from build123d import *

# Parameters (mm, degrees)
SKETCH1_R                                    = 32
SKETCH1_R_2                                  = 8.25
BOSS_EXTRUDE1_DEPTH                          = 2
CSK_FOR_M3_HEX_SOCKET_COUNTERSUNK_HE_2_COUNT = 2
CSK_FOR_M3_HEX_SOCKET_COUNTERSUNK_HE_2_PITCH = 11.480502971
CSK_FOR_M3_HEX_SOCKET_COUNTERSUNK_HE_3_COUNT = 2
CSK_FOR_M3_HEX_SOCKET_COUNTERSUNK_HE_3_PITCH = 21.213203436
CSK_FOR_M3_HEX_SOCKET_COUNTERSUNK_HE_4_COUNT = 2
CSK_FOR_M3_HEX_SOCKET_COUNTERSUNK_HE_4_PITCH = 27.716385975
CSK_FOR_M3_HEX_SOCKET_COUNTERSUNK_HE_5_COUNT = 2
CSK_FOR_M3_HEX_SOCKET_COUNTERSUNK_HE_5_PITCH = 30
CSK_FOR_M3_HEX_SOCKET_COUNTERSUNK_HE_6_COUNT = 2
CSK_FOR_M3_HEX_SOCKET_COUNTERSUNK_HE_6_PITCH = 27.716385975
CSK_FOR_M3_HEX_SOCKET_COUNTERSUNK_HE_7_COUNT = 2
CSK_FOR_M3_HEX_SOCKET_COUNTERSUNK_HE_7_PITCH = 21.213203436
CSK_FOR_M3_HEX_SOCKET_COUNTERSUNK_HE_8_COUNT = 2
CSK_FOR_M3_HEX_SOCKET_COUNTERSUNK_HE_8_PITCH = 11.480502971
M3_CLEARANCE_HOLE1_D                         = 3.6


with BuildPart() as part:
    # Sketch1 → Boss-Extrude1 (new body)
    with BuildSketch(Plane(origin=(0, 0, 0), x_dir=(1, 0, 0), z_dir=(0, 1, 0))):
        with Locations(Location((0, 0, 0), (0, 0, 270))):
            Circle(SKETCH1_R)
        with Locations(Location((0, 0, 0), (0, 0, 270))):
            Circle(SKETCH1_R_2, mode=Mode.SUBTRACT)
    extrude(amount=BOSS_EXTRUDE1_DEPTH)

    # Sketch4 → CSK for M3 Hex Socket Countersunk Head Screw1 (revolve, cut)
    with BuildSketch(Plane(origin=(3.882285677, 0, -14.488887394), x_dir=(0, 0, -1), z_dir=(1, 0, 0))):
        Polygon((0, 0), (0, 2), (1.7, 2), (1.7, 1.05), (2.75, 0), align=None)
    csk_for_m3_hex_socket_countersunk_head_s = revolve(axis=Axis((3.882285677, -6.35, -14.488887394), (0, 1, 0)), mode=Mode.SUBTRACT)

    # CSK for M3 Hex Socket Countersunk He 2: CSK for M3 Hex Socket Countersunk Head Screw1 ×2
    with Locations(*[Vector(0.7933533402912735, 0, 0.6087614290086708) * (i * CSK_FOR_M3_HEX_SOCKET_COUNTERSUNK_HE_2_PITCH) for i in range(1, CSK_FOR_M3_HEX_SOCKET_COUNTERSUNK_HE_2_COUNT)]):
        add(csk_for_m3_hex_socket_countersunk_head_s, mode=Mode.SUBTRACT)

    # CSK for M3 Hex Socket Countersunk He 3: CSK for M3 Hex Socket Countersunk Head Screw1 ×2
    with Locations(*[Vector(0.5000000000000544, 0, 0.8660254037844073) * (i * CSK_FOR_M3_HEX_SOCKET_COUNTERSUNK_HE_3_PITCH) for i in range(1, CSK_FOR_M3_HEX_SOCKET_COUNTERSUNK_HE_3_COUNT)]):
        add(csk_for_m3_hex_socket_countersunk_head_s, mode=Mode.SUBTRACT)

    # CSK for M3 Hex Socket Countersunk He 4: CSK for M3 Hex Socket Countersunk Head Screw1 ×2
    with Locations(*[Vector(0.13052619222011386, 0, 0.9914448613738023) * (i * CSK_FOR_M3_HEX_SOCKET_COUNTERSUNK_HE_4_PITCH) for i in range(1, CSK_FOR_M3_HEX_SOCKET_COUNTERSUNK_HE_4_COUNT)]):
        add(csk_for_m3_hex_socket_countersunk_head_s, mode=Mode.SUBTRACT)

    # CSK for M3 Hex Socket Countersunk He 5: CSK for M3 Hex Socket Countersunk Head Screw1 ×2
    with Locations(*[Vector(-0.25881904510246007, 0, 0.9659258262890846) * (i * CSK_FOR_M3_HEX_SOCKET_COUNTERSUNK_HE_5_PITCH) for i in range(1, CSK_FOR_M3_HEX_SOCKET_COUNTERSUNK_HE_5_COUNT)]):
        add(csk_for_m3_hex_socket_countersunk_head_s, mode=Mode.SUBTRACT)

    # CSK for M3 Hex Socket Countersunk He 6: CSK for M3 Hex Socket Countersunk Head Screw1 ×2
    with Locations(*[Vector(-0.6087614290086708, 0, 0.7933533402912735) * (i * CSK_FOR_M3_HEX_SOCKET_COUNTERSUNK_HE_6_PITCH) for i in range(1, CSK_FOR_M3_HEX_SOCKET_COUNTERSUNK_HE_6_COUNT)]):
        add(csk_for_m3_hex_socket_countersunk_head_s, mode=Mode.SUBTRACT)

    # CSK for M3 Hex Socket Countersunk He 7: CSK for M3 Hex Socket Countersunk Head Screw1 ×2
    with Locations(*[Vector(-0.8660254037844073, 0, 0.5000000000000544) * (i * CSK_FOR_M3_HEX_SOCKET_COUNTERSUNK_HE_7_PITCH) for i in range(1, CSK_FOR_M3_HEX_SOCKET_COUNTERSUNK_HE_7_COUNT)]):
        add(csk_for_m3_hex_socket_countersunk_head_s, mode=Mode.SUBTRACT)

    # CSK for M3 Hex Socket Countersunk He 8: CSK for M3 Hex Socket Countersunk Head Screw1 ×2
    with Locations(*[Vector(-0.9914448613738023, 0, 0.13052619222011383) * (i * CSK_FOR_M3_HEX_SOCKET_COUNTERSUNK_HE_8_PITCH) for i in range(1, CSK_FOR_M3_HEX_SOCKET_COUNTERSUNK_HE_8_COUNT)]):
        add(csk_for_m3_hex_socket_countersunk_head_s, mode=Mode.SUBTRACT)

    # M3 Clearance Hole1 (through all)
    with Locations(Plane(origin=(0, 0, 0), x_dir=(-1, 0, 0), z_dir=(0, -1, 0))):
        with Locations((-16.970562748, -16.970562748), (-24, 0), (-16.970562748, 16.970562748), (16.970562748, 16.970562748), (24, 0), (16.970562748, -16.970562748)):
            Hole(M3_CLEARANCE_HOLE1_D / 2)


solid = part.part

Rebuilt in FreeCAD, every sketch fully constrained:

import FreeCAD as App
import Part
import Sketcher
Q = App.Units.Quantity

doc = App.newDocument("Part")
params = doc.addObject("Spreadsheet::Sheet", "Params")
for row, (alias, value) in enumerate([
    ("sketch1_diameter", "64 mm"),
    ("sketch1_diameter2", "16.5 mm"),
    ("pad1_length", "2 mm"),
    ("sketch2_width", "2 mm"),
    ("sketch2_height", "1.7 mm"),
    ("sketch2_width2", "0.95 mm"),
    ("groove_angle", "360 deg"),
    ("linearpattern_pitch", "11.480503 mm"),
    ("linearpattern2_pitch", "21.213203 mm"),
    ("linearpattern3_pitch", "27.716386 mm"),
    ("linearpattern4_pitch", "30 mm"),
    ("linearpattern5_pitch", "27.716386 mm"),
    ("linearpattern6_pitch", "21.213203 mm"),
    ("linearpattern7_pitch", "11.480503 mm"),
    ("sketch3_diameter", "3.6 mm"),
    ("hole_diameter", "3.6 mm"),
], start=1):
    params.set(f"A{row}", alias)
    params.set(f"B{row}", "=" + value)
    params.setAlias(f"B{row}", alias)

body = doc.addObject("PartDesign::Body", "Body")

sketch1 = body.newObject("Sketcher::SketchObject", "Sketch")
sketch1.AttachmentSupport = (doc.getObject("XZ_Plane"), [""])
sketch1.MapMode = "FlatFace"
sketch1.addGeometry(Part.Circle(App.Vector(0, 0, 0), App.Vector(0, 0, 1), 32), False)
sketch1.addGeometry(Part.Circle(App.Vector(0, 0, 0), App.Vector(0, 0, 1), 8), False)
sketch1.addConstraint(Sketcher.Constraint("Coincident", 0, 3, -1, 1))
sketch1.addConstraint(Sketcher.Constraint("Coincident", 1, 3, -1, 1))
sketch1.addConstraint(Sketcher.Constraint("Diameter", 0, 64.0))
sketch1.addConstraint(Sketcher.Constraint("Diameter", 1, 16.5))
sketch1.setExpression("Constraints[2]", "Params.sketch1_diameter")
sketch1.setExpression("Constraints[3]", "Params.sketch1_diameter2")
pad1 = body.newObject("PartDesign::Pad", "Pad")
pad1.Profile = sketch1
pad1.setExpression("Length", "Params.pad1_length")
pad1.Reversed = True

sketch2 = body.newObject("Sketcher::SketchObject", "Sketch001")
sketch2.AttachmentSupport = (doc.getObject("YZ_Plane"), [""])
sketch2.MapMode = "FlatFace"
sketch2.AttachmentOffset = App.Placement(App.Vector(0, 0, 3.882286), App.Rotation())
sketch2.addGeometry(Part.LineSegment(App.Vector(2, -14.5, 0), App.Vector(0, -14.5, 0)), False)
sketch2.addGeometry(Part.LineSegment(App.Vector(0, -14.5, 0), App.Vector(0, -17.2, 0)), False)
sketch2.addGeometry(Part.LineSegment(App.Vector(0, -17.2, 0), App.Vector(1.1, -16.2, 0)), False)
sketch2.addGeometry(Part.LineSegment(App.Vector(1.1, -16.2, 0), App.Vector(2, -16.2, 0)), False)
sketch2.addGeometry(Part.LineSegment(App.Vector(2, -16.2, 0), App.Vector(2, -14.5, 0)), False)
sketch2.addGeometry(Part.LineSegment(App.Vector(0, -14.5, 0), App.Vector(2, -14.5, 0)), True)
sketch2.addConstraint(Sketcher.Constraint("Coincident", 0, 2, 1, 1))
sketch2.addConstraint(Sketcher.Constraint("Coincident", 1, 2, 2, 1))
sketch2.addConstraint(Sketcher.Constraint("Coincident", 2, 2, 3, 1))
sketch2.addConstraint(Sketcher.Constraint("Coincident", 3, 2, 4, 1))
sketch2.addConstraint(Sketcher.Constraint("Coincident", 4, 2, 0, 1))
sketch2.addConstraint(Sketcher.Constraint("Horizontal", 0))
sketch2.addConstraint(Sketcher.Constraint("Vertical", 1))
sketch2.addConstraint(Sketcher.Constraint("Horizontal", 3))
sketch2.addConstraint(Sketcher.Constraint("Vertical", 4))
sketch2.addConstraint(Sketcher.Constraint("Horizontal", 5))
sketch2.addConstraint(Sketcher.Constraint("Coincident", 5, 1, 0, 2))
sketch2.addConstraint(Sketcher.Constraint("PointOnObject", 0, 2, -2))
sketch2.addConstraint(Sketcher.Constraint("Vertical", 3, 2, 5, 2))
sketch2.addConstraint(Sketcher.Constraint("DistanceX", 0, 2, 0, 1, 2.0))
sketch2.addConstraint(Sketcher.Constraint("Angle", 2, Q("45 deg")))
sketch2.addConstraint(Sketcher.Constraint("DistanceY", 4, 1, 4, 2, 1.7))
sketch2.addConstraint(Sketcher.Constraint("DistanceX", 3, 1, 3, 2, 0.95))
sketch2.addConstraint(Sketcher.Constraint("DistanceY", 0, 2, -1, 1, 14.488887))
sketch2.setExpression("Constraints[13]", "Params.sketch2_width")
sketch2.setExpression("Constraints[15]", "Params.sketch2_height")
sketch2.setExpression("Constraints[16]", "Params.sketch2_width2")
groove = body.newObject("PartDesign::Groove", "Groove")
groove.Profile = sketch2
groove.ReferenceAxis = (sketch2, ["Axis0"])
groove.setExpression("Angle", "Params.groove_angle")
doc.recompute()

datumline = body.newObject("PartDesign::Line", "DatumLine")
datumline.Placement = App.Placement(App.Vector(0, 0, 0), App.Rotation(App.Vector(0, 0, 1), App.Vector(0.79335334, 0, 0.608761429)))
linearpattern = body.newObject("PartDesign::LinearPattern", "LinearPattern")
linearpattern.Originals = [groove]
linearpattern.Direction = (datumline, [""])
linearpattern.Mode = "offset"
linearpattern.setExpression("Offset", "Params.linearpattern_pitch")
linearpattern.Occurrences = 2
body.Tip = linearpattern
doc.recompute()

datumline2 = body.newObject("PartDesign::Line", "DatumLine001")
datumline2.Placement = App.Placement(App.Vector(0, 0, 0), App.Rotation(App.Vector(0, 0, 1), App.Vector(0.5, 0, 0.866025404)))
linearpattern2 = body.newObject("PartDesign::LinearPattern", "LinearPattern001")
linearpattern2.Originals = [groove]
linearpattern2.Direction = (datumline2, [""])
linearpattern2.Mode = "offset"
linearpattern2.setExpression("Offset", "Params.linearpattern2_pitch")
linearpattern2.Occurrences = 2
body.Tip = linearpattern2
doc.recompute()

datumline3 = body.newObject("PartDesign::Line", "DatumLine002")
datumline3.Placement = App.Placement(App.Vector(0, 0, 0), App.Rotation(App.Vector(0, 0, 1), App.Vector(0.130526192, 0, 0.991444861)))
linearpattern3 = body.newObject("PartDesign::LinearPattern", "LinearPattern002")
linearpattern3.Originals = [groove]
linearpattern3.Direction = (datumline3, [""])
linearpattern3.Mode = "offset"
linearpattern3.setExpression("Offset", "Params.linearpattern3_pitch")
linearpattern3.Occurrences = 2
body.Tip = linearpattern3
doc.recompute()

datumline4 = body.newObject("PartDesign::Line", "DatumLine003")
datumline4.Placement = App.Placement(App.Vector(0, 0, 0), App.Rotation(App.Vector(0, 0, 1), App.Vector(-0.258819045, 0, 0.965925826)))
linearpattern4 = body.newObject("PartDesign::LinearPattern", "LinearPattern003")
linearpattern4.Originals = [groove]
linearpattern4.Direction = (datumline4, [""])
linearpattern4.Mode = "offset"
linearpattern4.setExpression("Offset", "Params.linearpattern4_pitch")
linearpattern4.Occurrences = 2
body.Tip = linearpattern4
doc.recompute()

datumline5 = body.newObject("PartDesign::Line", "DatumLine004")
datumline5.Placement = App.Placement(App.Vector(0, 0, 0), App.Rotation(App.Vector(0, 0, 1), App.Vector(-0.608761429, 0, 0.79335334)))
linearpattern5 = body.newObject("PartDesign::LinearPattern", "LinearPattern004")
linearpattern5.Originals = [groove]
linearpattern5.Direction = (datumline5, [""])
linearpattern5.Mode = "offset"
linearpattern5.setExpression("Offset", "Params.linearpattern5_pitch")
linearpattern5.Occurrences = 2
body.Tip = linearpattern5
doc.recompute()

datumline6 = body.newObject("PartDesign::Line", "DatumLine005")
datumline6.Placement = App.Placement(App.Vector(0, 0, 0), App.Rotation(App.Vector(0, 0, 1), App.Vector(-0.866025404, 0, 0.5)))
linearpattern6 = body.newObject("PartDesign::LinearPattern", "LinearPattern005")
linearpattern6.Originals = [groove]
linearpattern6.Direction = (datumline6, [""])
linearpattern6.Mode = "offset"
linearpattern6.setExpression("Offset", "Params.linearpattern6_pitch")
linearpattern6.Occurrences = 2
body.Tip = linearpattern6
doc.recompute()

datumline7 = body.newObject("PartDesign::Line", "DatumLine006")
datumline7.Placement = App.Placement(App.Vector(0, 0, 0), App.Rotation(App.Vector(0, 0, 1), App.Vector(-0.991444861, 0, 0.130526192)))
linearpattern7 = body.newObject("PartDesign::LinearPattern", "LinearPattern006")
linearpattern7.Originals = [groove]
linearpattern7.Direction = (datumline7, [""])
linearpattern7.Mode = "offset"
linearpattern7.setExpression("Offset", "Params.linearpattern7_pitch")
linearpattern7.Occurrences = 2
body.Tip = linearpattern7

sketch3 = body.newObject("Sketcher::SketchObject", "Sketch002")
sketch3.AttachmentSupport = (doc.getObject("XZ_Plane"), [""])
sketch3.MapMode = "FlatFace"
sketch3.addGeometry(Part.Circle(App.Vector(17, 17, 0), App.Vector(0, 0, 1), 1.8), False)
sketch3.addGeometry(Part.Circle(App.Vector(24, 0, 0), App.Vector(0, 0, 1), 1.8), False)
sketch3.addGeometry(Part.Circle(App.Vector(17, -17, 0), App.Vector(0, 0, 1), 1.8), False)
sketch3.addGeometry(Part.Circle(App.Vector(-17, -17, 0), App.Vector(0, 0, 1), 1.8), False)
sketch3.addGeometry(Part.Circle(App.Vector(-24, 0, 0), App.Vector(0, 0, 1), 1.8), False)
sketch3.addGeometry(Part.Circle(App.Vector(-17, 17, 0), App.Vector(0, 0, 1), 1.8), False)
sketch3.addConstraint(Sketcher.Constraint("Equal", 0, 1))
sketch3.addConstraint(Sketcher.Constraint("Equal", 1, 2))
sketch3.addConstraint(Sketcher.Constraint("Equal", 2, 3))
sketch3.addConstraint(Sketcher.Constraint("Equal", 3, 4))
sketch3.addConstraint(Sketcher.Constraint("Equal", 4, 5))
sketch3.addConstraint(Sketcher.Constraint("Symmetric", 0, 3, 3, 3, -1, 1))
sketch3.addConstraint(Sketcher.Constraint("Symmetric", 1, 3, 4, 3, -1, 1))
sketch3.addConstraint(Sketcher.Constraint("Symmetric", 2, 3, 5, 3, -1, 1))
sketch3.addConstraint(Sketcher.Constraint("Symmetric", 2, 3, 3, 3, -2))
sketch3.addConstraint(Sketcher.Constraint("PointOnObject", 1, 3, -1))
sketch3.addConstraint(Sketcher.Constraint("Diameter", 0, 3.6))
sketch3.addConstraint(Sketcher.Constraint("DistanceX", -1, 1, 1, 3, 24.0))
sketch3.addConstraint(Sketcher.Constraint("DistanceX", -1, 1, 0, 3, 16.970563))
sketch3.addConstraint(Sketcher.Constraint("DistanceY", -1, 1, 0, 3, 16.970563))
sketch3.setExpression("Constraints[10]", "Params.sketch3_diameter")
doc.recompute()
hole = body.newObject("PartDesign::Hole", "Hole")
hole.Profile = sketch3
hole.ThreadType = "None"
hole.setExpression("Diameter", "Params.hole_diameter")
hole.DepthType = "ThroughAll"

doc.recompute()
